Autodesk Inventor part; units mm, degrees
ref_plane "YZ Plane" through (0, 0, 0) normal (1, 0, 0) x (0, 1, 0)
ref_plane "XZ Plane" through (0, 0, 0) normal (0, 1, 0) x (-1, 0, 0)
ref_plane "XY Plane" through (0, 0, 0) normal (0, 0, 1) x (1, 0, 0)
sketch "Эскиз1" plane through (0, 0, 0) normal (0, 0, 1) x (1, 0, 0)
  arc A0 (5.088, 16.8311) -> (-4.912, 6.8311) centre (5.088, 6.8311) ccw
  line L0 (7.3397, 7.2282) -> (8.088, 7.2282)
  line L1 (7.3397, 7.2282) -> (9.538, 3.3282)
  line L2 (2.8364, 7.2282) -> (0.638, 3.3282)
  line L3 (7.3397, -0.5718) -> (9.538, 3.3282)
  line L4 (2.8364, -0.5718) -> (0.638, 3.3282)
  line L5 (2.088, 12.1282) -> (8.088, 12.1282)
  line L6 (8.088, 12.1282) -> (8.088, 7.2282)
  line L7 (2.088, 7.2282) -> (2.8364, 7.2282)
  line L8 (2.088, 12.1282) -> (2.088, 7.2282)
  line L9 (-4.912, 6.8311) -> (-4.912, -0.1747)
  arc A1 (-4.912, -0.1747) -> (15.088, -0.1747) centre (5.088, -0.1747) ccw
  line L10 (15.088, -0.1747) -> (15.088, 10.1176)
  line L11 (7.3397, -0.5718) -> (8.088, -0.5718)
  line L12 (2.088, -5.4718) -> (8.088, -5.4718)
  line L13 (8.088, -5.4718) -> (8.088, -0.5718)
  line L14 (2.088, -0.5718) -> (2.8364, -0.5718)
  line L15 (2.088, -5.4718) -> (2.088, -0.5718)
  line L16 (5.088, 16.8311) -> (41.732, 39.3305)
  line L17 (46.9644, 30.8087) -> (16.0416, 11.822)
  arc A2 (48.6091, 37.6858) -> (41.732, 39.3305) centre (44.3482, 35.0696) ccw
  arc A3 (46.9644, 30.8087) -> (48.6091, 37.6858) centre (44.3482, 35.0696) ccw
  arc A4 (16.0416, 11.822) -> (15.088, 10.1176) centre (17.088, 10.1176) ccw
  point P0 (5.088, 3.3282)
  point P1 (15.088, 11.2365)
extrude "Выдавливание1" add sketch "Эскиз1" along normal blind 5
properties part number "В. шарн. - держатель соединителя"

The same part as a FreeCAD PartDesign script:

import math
import FreeCAD as App
import Part
import Sketcher
from FreeCAD import Vector
Q = App.Units.Quantity


def add_polygon(sketch, points):
    """Adds a closed chain of lines whose ends are joined by coincident constraints."""
    first, n = sketch.GeometryCount, len(points)
    for a, b in zip(points, points[1:] + points[:1]):
        sketch.addGeometry(Part.LineSegment(App.Vector(*a, 0), App.Vector(*b, 0)), False)
    for i in range(n):
        sketch.addConstraint(Sketcher.Constraint("Coincident", first + i, 2, first + (i + 1) % n, 1))

doc = App.newDocument("Part")
params = doc.addObject("Spreadsheet::Sheet", "Params")
for row, (alias, value) in enumerate([
    ("sketch1_radius", "10 mm"),
    ("sketch1_radius2", "2 mm"),
    ("sketch1_radius3", "5 mm"),
    ("sketch1_width", "6 mm"),
    ("sketch1_length", "43 mm"),
    ("pad1_length", "5 mm"),
], start=1):
    params.set(f"A{row}", alias)
    params.set(f"B{row}", "=" + value)
    params.setAlias(f"B{row}", alias)

body = doc.addObject("PartDesign::Body", "Body")

sketch1 = body.newObject("Sketcher::SketchObject", "Sketch")
sketch1.AttachmentSupport = (doc.getObject("XY_Plane"), [""])
sketch1.MapMode = "FlatFace"
sketch1.addGeometry(Part.LineSegment(Vector(41.7, 39.3, 0), Vector(5.1, 16.8, 0)), False)
sketch1.addGeometry(Part.ArcOfCircle(Part.Circle(Vector(5.1, 6.8, 0), Vector(0, 0, 1), 10), math.radians(90), math.radians(180)), False)
sketch1.addGeometry(Part.LineSegment(Vector(-4.9, 6.8, 0), Vector(-4.9, -0.2, 0)), False)
sketch1.addGeometry(Part.ArcOfCircle(Part.Circle(Vector(5.1, -0.2, 0), Vector(0, 0, 1), 10), math.radians(180), math.radians(360)), False)
sketch1.addGeometry(Part.LineSegment(Vector(15.1, -0.2, 0), Vector(15.1, 10.1, 0)), False)
sketch1.addGeometry(Part.ArcOfCircle(Part.Circle(Vector(17.1, 10.1, 0), Vector(0, 0, 1), 2), math.radians(122), math.radians(180)), False)
sketch1.addGeometry(Part.LineSegment(Vector(16, 11.8, 0), Vector(47, 30.8, 0)), False)
sketch1.addGeometry(Part.ArcOfCircle(Part.Circle(Vector(44.3, 35.1, 0), Vector(0, 0, 1), 5), math.radians(-58), math.radians(122)), False)
add_polygon(sketch1, [(8.1, 7.2), (7.3, 7.2), (9.5, 3.3), (7.3, -0.6), (8.1, -0.6), (8.1, -5.5), (2.1, -5.5), (2.1, -0.6), (2.8, -0.6), (0.6, 3.3), (2.8, 7.2), (2.1, 7.2), (2.1, 12.1), (8.1, 12.1)])
sketch1.addConstraint([
    Sketcher.Constraint("Coincident", 0, 2, 1, 1),
    Sketcher.Constraint("Tangent", 1, 2, 2, 1),
    Sketcher.Constraint("Tangent", 2, 2, 3, 1),
    Sketcher.Constraint("Tangent", 3, 2, 4, 1),
    Sketcher.Constraint("Tangent", 4, 2, 5, 2),
    Sketcher.Constraint("Tangent", 5, 1, 6, 1),
    Sketcher.Constraint("Tangent", 6, 2, 7, 1),
    Sketcher.Constraint("Tangent", 7, 2, 0, 1),
    Sketcher.Constraint("Vertical", 2),
    Sketcher.Constraint("Vertical", 4),
    Sketcher.Constraint("Horizontal", 8),
    Sketcher.Constraint("Horizontal", 11),
    Sketcher.Constraint("Vertical", 12),
    Sketcher.Constraint("Horizontal", 13),
    Sketcher.Constraint("Vertical", 14),
    Sketcher.Constraint("Horizontal", 15),
    Sketcher.Constraint("Horizontal", 18),
    Sketcher.Constraint("Vertical", 19),
    Sketcher.Constraint("Horizontal", 20),
    Sketcher.Constraint("Vertical", 21),
    Sketcher.Constraint("Equal", 1, 3),
    Sketcher.Constraint("Parallel", 0, 6),
    Sketcher.Constraint("Parallel", 9, 16),
    Sketcher.Constraint("Parallel", 10, 17),
    Sketcher.Constraint("Horizontal", 11, 2, 14, 2),
    Sketcher.Constraint("Horizontal", 9, 2, 16, 2),
    Sketcher.Constraint("Horizontal", 8, 2, 17, 2),
    Sketcher.Constraint("Vertical", 3, 3, 0, 2),
    Sketcher.Constraint("Vertical", 8, 2, 10, 2),
    Sketcher.Constraint("Vertical", 15, 2, 17, 2),
    Sketcher.Constraint("Vertical", 14, 2, 18, 2),
    Sketcher.Constraint("Vertical", 12, 2, 20, 2),
    Sketcher.Constraint("Equal", 11, 15),
    Sketcher.Constraint("Equal", 14, 19),
    Sketcher.Constraint("Radius", 1, 10.0),
    Sketcher.Constraint("Radius", 5, 2.0),
    Sketcher.Constraint("Radius", 7, 5.0),
    Sketcher.Constraint("DistanceX", 13, 2, 13, 1, 6.0),
    Sketcher.Constraint("Distance", 0, 43.0),
    Sketcher.Constraint("DistanceY", 12, 2, 12, 1, 4.9),
    Sketcher.Constraint("DistanceX", 3, 3, 11, 2, 3.0),
    Sketcher.Constraint("Angle", 0, Q("-148.45 deg")),
    Sketcher.Constraint("Angle", 16, Q("119.4096 deg")),
    Sketcher.Constraint("DistanceY", 9, 2, 8, 2, 3.9),
    Sketcher.Constraint("DistanceX", 1, 3, 9, 2, 4.45),
    Sketcher.Constraint("DistanceY", 2, 2, 2, 1, 7.0058),
    Sketcher.Constraint("DistanceX", -1, 1, 1, 3, 5.088),
    Sketcher.Constraint("DistanceY", -1, 1, 1, 3, 6.831),
    Sketcher.Constraint("DistanceY", 1, 3, 8, 2, 0.397),
])
sketch1.setExpression("Constraints[48]", "Params.sketch1_radius")
sketch1.setExpression("Constraints[49]", "Params.sketch1_radius2")
sketch1.setExpression("Constraints[50]", "Params.sketch1_radius3")
sketch1.setExpression("Constraints[51]", "Params.sketch1_width")
sketch1.setExpression("Constraints[52]", "Params.sketch1_length")
pad1 = body.newObject("PartDesign::Pad", "Pad")
pad1.Profile = sketch1
pad1.setExpression("Length", "Params.pad1_length")

doc.recompute()
